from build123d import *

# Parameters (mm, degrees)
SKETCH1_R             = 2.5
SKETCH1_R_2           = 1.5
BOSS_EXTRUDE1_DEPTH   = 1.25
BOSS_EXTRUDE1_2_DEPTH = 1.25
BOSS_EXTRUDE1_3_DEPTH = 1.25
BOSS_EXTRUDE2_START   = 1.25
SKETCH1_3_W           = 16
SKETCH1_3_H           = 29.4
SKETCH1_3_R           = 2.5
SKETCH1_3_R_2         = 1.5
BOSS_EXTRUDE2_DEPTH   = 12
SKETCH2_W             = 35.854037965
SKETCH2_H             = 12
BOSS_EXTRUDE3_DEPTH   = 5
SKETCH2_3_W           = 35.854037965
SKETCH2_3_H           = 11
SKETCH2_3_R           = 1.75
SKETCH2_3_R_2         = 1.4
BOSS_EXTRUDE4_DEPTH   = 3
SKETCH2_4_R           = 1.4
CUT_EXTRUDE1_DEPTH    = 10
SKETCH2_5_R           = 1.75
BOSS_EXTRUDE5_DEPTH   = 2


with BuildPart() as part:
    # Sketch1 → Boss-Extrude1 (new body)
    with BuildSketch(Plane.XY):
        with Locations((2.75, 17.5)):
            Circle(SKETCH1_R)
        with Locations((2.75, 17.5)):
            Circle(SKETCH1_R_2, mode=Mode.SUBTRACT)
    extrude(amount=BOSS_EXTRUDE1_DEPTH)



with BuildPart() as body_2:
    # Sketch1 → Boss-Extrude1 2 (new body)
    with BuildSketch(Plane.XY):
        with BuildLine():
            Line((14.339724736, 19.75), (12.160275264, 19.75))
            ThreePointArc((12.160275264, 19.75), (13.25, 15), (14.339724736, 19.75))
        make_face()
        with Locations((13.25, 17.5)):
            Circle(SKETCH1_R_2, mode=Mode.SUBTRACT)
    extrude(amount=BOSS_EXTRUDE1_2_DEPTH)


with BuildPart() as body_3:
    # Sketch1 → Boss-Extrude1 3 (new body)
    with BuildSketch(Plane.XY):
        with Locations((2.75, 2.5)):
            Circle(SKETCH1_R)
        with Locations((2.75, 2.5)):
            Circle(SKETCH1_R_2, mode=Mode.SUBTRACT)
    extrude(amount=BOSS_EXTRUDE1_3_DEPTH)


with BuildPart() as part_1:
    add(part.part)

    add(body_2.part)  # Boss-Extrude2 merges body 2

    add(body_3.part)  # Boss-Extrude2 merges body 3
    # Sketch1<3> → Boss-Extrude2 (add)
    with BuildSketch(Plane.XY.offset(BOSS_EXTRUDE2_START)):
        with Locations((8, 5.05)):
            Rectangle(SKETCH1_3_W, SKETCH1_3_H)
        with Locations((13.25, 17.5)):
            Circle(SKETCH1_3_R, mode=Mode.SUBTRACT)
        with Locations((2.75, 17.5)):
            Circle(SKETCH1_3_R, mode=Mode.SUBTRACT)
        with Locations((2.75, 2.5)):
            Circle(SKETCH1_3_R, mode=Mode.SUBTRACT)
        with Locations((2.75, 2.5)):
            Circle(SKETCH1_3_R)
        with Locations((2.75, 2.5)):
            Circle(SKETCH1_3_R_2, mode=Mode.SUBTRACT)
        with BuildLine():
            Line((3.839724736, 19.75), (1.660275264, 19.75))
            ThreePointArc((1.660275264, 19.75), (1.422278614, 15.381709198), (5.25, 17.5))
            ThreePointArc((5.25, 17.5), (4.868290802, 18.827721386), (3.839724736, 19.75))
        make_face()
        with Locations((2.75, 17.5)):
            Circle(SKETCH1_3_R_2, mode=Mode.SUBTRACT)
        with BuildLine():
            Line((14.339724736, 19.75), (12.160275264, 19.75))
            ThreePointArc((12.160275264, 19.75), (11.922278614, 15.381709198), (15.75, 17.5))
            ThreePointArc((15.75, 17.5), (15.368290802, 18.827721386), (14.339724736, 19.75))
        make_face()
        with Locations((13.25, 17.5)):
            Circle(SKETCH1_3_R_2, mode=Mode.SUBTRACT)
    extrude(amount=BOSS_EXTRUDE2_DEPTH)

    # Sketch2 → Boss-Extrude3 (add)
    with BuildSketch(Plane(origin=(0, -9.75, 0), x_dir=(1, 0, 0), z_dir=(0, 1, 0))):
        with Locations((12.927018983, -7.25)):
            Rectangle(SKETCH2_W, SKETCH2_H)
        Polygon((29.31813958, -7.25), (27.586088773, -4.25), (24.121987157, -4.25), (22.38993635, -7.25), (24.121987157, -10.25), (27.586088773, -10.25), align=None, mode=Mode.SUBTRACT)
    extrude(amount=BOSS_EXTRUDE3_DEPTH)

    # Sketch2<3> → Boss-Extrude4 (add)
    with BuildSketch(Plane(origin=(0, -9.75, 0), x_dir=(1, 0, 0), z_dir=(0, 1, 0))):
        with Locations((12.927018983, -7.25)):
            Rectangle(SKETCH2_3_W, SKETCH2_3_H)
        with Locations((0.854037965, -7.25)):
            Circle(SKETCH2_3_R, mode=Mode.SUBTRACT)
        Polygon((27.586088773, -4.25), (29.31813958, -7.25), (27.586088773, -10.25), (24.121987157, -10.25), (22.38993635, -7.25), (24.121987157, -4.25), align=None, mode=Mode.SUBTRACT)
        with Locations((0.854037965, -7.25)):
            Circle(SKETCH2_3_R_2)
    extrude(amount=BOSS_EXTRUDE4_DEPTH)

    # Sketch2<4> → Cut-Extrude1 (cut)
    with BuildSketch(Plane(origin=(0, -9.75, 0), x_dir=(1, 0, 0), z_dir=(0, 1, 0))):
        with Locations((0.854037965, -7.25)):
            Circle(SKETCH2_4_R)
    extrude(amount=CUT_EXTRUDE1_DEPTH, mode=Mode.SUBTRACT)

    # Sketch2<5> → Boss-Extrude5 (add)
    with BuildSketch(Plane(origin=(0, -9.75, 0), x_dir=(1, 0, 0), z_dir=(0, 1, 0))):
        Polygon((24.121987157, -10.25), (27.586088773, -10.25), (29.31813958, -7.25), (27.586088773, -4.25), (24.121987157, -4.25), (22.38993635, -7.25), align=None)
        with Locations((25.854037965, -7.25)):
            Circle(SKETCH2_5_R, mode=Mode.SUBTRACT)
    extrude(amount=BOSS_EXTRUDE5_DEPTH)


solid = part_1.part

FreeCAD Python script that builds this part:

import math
import FreeCAD as App
import Part
import Sketcher

V = App.Vector
Q = App.Units.Quantity


def add_polygon(sketch, points):
    """Adds a closed chain of lines whose ends are joined by coincident constraints."""
    first, n = sketch.GeometryCount, len(points)
    for a, b in zip(points, points[1:] + points[:1]):
        sketch.addGeometry(Part.LineSegment(App.Vector(*a, 0), App.Vector(*b, 0)), False)
    for i in range(n):
        sketch.addConstraint(Sketcher.Constraint("Coincident", first + i, 2, first + (i + 1) % n, 1))

doc = App.newDocument("Part")
body = doc.addObject("PartDesign::Body", "Body")

sketch1 = body.newObject("Sketcher::SketchObject", "Sketch")
sketch1.AttachmentSupport = (doc.getObject("XY_Plane"), [""])
sketch1.MapMode = "FlatFace"
sketch1.addGeometry([
    Part.Circle(V(2.8, 17.5, 0), V(0, 0, 1), 2.5),
    Part.Circle(V(2.8, 17.5, 0), V(0, 0, 1), 1.5),
], False)
sketch1.addConstraint([
    Sketcher.Constraint("Coincident", 1, 3, 0, 3),
    Sketcher.Constraint("Diameter", 0, Q("5 mm")),
    Sketcher.Constraint("Diameter", 1, Q("3 mm")),
    Sketcher.Constraint("DistanceY", -1, 1, 0, 3, Q("17.5 mm")),
    Sketcher.Constraint("DistanceX", -1, 1, 0, 3, Q("2.75 mm")),
])
pad1 = body.newObject("PartDesign::Pad", "Pad")
pad1.Profile = sketch1
pad1.Length = 1.25
body2 = doc.addObject("PartDesign::Body", "Body001")

sketch2 = body2.newObject("Sketcher::SketchObject", "Sketch001")
sketch2.AttachmentSupport = (doc.getObject("XY_Plane001"), [""])
sketch2.MapMode = "FlatFace"
sketch2.addGeometry([
    Part.LineSegment(V(14.3, 19.8, 0), V(12.2, 19.8, 0)),
    Part.ArcOfCircle(Part.Circle(V(13.2, 17.5, 0), V(0, 0, 1), 2.5), math.radians(116), math.radians(424)),
    Part.Circle(V(13.2, 17.5, 0), V(0, 0, 1), 1.5),
], False)
sketch2.addConstraint([
    Sketcher.Constraint("Coincident", 0, 1, 1, 2),
    Sketcher.Constraint("Coincident", 1, 1, 0, 2),
    Sketcher.Constraint("Horizontal", 0),
    Sketcher.Constraint("Coincident", 2, 3, 1, 3),
    Sketcher.Constraint("Diameter", 2, Q("3 mm")),
    Sketcher.Constraint("Radius", 1, Q("2.5 mm")),
    Sketcher.Constraint("DistanceY", -1, 1, 1, 3, Q("17.5 mm")),
    Sketcher.Constraint("DistanceX", -1, 1, 1, 3, Q("13.25 mm")),
    Sketcher.Constraint("DistanceY", -1, 1, 0, 1, Q("19.75 mm")),
])
pad2 = body2.newObject("PartDesign::Pad", "Pad001")
pad2.Profile = sketch2
pad2.Length = 1.25
body3 = doc.addObject("PartDesign::Body", "Body002")

sketch3 = body3.newObject("Sketcher::SketchObject", "Sketch002")
sketch3.AttachmentSupport = (doc.getObject("XY_Plane002"), [""])
sketch3.MapMode = "FlatFace"
sketch3.addGeometry([
    Part.Circle(V(2.8, 2.5, 0), V(0, 0, 1), 2.5),
    Part.Circle(V(2.8, 2.5, 0), V(0, 0, 1), 1.5),
], False)
sketch3.addConstraint([
    Sketcher.Constraint("Coincident", 1, 3, 0, 3),
    Sketcher.Constraint("Diameter", 0, Q("5 mm")),
    Sketcher.Constraint("Diameter", 1, Q("3 mm")),
    Sketcher.Constraint("DistanceY", -1, 1, 0, 3, Q("2.5 mm")),
    Sketcher.Constraint("DistanceX", -1, 1, 0, 3, Q("2.75 mm")),
])
pad3 = body3.newObject("PartDesign::Pad", "Pad002")
pad3.Profile = sketch3
pad3.Length = 1.25
body.AllowCompound = True
doc.recompute()

boolean = body.newObject("PartDesign::Boolean", "Boolean")
boolean.Type = "Fuse"
boolean.addObjects([body2])
doc.recompute()

boolean2 = body.newObject("PartDesign::Boolean", "Boolean001")
boolean2.Type = "Fuse"
boolean2.addObjects([body3])

sketch4 = body.newObject("Sketcher::SketchObject", "Sketch003")
sketch4.AttachmentSupport = (doc.getObject("XY_Plane"), [""])
sketch4.MapMode = "FlatFace"
sketch4.AttachmentOffset = App.Placement(V(0, 0, 1.25), App.Rotation())
add_polygon(sketch4, [(0, 19.8), (0, -9.7), (16, -9.7), (16, 19.8)])
sketch4.addGeometry(Part.Circle(V(2.8, 2.5, 0), V(0, 0, 1), 1.5), False)
sketch4.addGeometry(Part.Circle(V(2.8, 17.5, 0), V(0, 0, 1), 1.5), False)
sketch4.addGeometry(Part.Circle(V(13.2, 17.5, 0), V(0, 0, 1), 1.5), False)
sketch4.addConstraint([
    Sketcher.Constraint("Vertical", 0),
    Sketcher.Constraint("Horizontal", 1),
    Sketcher.Constraint("Vertical", 2),
    Sketcher.Constraint("Horizontal", 3),
    Sketcher.Constraint("Equal", 4, 5),
    Sketcher.Constraint("Equal", 5, 6),
    Sketcher.Constraint("PointOnObject", 0, 2, -2),
    Sketcher.Constraint("Horizontal", 5, 3, 6, 3),
    Sketcher.Constraint("Vertical", 4, 3, 5, 3),
    Sketcher.Constraint("Diameter", 4, Q("3 mm")),
    Sketcher.Constraint("DistanceX", 1, 1, 1, 2, Q("16 mm")),
    Sketcher.Constraint("DistanceY", 0, 2, 0, 1, Q("29.4 mm")),
    Sketcher.Constraint("DistanceY", 4, 3, 5, 3, Q("15 mm")),
    Sketcher.Constraint("DistanceY", -1, 1, 4, 3, Q("2.5 mm")),
    Sketcher.Constraint("DistanceX", 5, 3, 6, 3, Q("10.5 mm")),
    Sketcher.Constraint("DistanceX", -1, 1, 4, 3, Q("2.75 mm")),
    Sketcher.Constraint("DistanceY", 0, 2, -1, 1, Q("9.65 mm")),
])
pad4 = body.newObject("PartDesign::Pad", "Pad003")
pad4.Profile = sketch4
pad4.Length = 12

sketch5 = body.newObject("Sketcher::SketchObject", "Sketch004")
sketch5.AttachmentSupport = (doc.getObject("XZ_Plane"), [""])
sketch5.MapMode = "FlatFace"
sketch5.AttachmentOffset = App.Placement(V(0, 0, 9.75), App.Rotation())
add_polygon(sketch5, [(-5, 1.2), (-5, 13.2), (30.9, 13.2), (30.9, 1.2)])
add_polygon(sketch5, [(27.6, 4.2), (29.3, 7.2), (27.6, 10.2), (24.1, 10.2), (22.4, 7.2), (24.1, 4.2)])
sketch5.addConstraint([
    Sketcher.Constraint("Vertical", 0),
    Sketcher.Constraint("Horizontal", 1),
    Sketcher.Constraint("Vertical", 2),
    Sketcher.Constraint("Horizontal", 3),
    Sketcher.Constraint("Horizontal", 6),
    Sketcher.Constraint("Horizontal", 9),
    Sketcher.Constraint("Parallel", 4, 7),
    Sketcher.Constraint("Parallel", 5, 8),
    Sketcher.Constraint("Horizontal", 4, 2, 7, 2),
    Sketcher.Constraint("Vertical", 6, 2, 8, 2),
    Sketcher.Constraint("Vertical", 5, 2, 9, 2),
    Sketcher.Constraint("DistanceY", 0, 1, 0, 2, Q("12 mm")),
    Sketcher.Constraint("Angle", 4, Q("60 deg")),
    Sketcher.Constraint("DistanceX", 0, 2, -1, 1, Q("5 mm")),
    Sketcher.Constraint("DistanceY", 4, 2, 1, 2, Q("6 mm")),
    Sketcher.Constraint("DistanceY", 4, 2, 5, 2, Q("3 mm")),
    Sketcher.Constraint("DistanceY", -1, 1, 0, 2, Q("13.25 mm")),
    Sketcher.Constraint("DistanceX", 6, 2, 6, 1, Q("3.464102 mm")),
    Sketcher.Constraint("DistanceX", 4, 2, 1, 2, Q("1.535898 mm")),
    Sketcher.Constraint("DistanceX", 1, 1, 1, 2, Q("35.854038 mm")),
])
pad5 = body.newObject("PartDesign::Pad", "Pad004")
pad5.Profile = sketch5
pad5.Length = 5
pad5.Reversed = True

sketch6 = body.newObject("Sketcher::SketchObject", "Sketch005")
sketch6.AttachmentSupport = (doc.getObject("XZ_Plane"), [""])
sketch6.MapMode = "FlatFace"
sketch6.AttachmentOffset = App.Placement(V(0, 0, 9.75), App.Rotation())
add_polygon(sketch6, [(-5, 1.8), (-5, 12.8), (30.9, 12.8), (30.9, 1.8)])
sketch6.addGeometry(Part.Circle(V(0.9, 7.2, 0), V(0, 0, 1), 1.8), False)
add_polygon(sketch6, [(24.1, 4.2), (27.6, 4.2), (29.3, 7.2), (27.6, 10.2), (24.1, 10.2), (22.4, 7.2)])
sketch6.addGeometry(Part.Circle(V(0.9, 7.2, 0), V(0, 0, 1), 1.4), False)
sketch6.addConstraint([
    Sketcher.Constraint("Vertical", 0),
    Sketcher.Constraint("Horizontal", 1),
    Sketcher.Constraint("Vertical", 2),
    Sketcher.Constraint("Horizontal", 3),
    Sketcher.Constraint("Horizontal", 5),
    Sketcher.Constraint("Horizontal", 8),
    Sketcher.Constraint("Coincident", 11, 3, 4, 3),
    Sketcher.Constraint("Parallel", 6, 9),
    Sketcher.Constraint("Parallel", 7, 10),
    Sketcher.Constraint("Horizontal", 11, 3, 6, 2),
    Sketcher.Constraint("Horizontal", 6, 2, 9, 2),
    Sketcher.Constraint("Vertical", 5, 2, 7, 2),
    Sketcher.Constraint("Vertical", 8, 2, 10, 2),
    Sketcher.Constraint("Diameter", 4, Q("3.5 mm")),
    Sketcher.Constraint("Diameter", 11, Q("2.8 mm")),
    Sketcher.Constraint("DistanceY", 0, 1, 0, 2, Q("11 mm")),
    Sketcher.Constraint("Angle", 6, Q("60 deg")),
    Sketcher.Constraint("DistanceX", 0, 2, -1, 1, Q("5 mm")),
    Sketcher.Constraint("DistanceX", 4, 3, 1, 2, Q("30 mm")),
    Sketcher.Constraint("DistanceY", 5, 2, 4, 3, Q("3 mm")),
    Sketcher.Constraint("DistanceY", 4, 3, 0, 2, Q("5.5 mm")),
    Sketcher.Constraint("DistanceY", -1, 1, 4, 3, Q("7.25 mm")),
    Sketcher.Constraint("DistanceX", 5, 1, 5, 2, Q("3.464102 mm")),
    Sketcher.Constraint("DistanceX", 6, 2, 1, 2, Q("1.535898 mm")),
    Sketcher.Constraint("DistanceX", 1, 1, 1, 2, Q("35.854038 mm")),
])
pad6 = body.newObject("PartDesign::Pad", "Pad005")
pad6.Profile = sketch6
pad6.Length = 3
pad6.Reversed = True

sketch7 = body.newObject("Sketcher::SketchObject", "Sketch006")
sketch7.AttachmentSupport = (doc.getObject("XZ_Plane"), [""])
sketch7.MapMode = "FlatFace"
sketch7.AttachmentOffset = App.Placement(V(0, 0, 9.75), App.Rotation())
sketch7.addGeometry(Part.Circle(V(0.9, 7.2, 0), V(0, 0, 1), 1.4), False)
sketch7.addConstraint([
    Sketcher.Constraint("Diameter", 0, Q("2.8 mm")),
    Sketcher.Constraint("DistanceY", -1, 1, 0, 3, Q("7.25 mm")),
    Sketcher.Constraint("DistanceX", -1, 1, 0, 3, Q("0.854038 mm")),
])
pocket1 = body.newObject("PartDesign::Pocket", "Pocket")
pocket1.Profile = sketch7
pocket1.Length = 10

sketch8 = body.newObject("Sketcher::SketchObject", "Sketch007")
sketch8.AttachmentSupport = (doc.getObject("XZ_Plane"), [""])
sketch8.MapMode = "FlatFace"
sketch8.AttachmentOffset = App.Placement(V(0, 0, 9.75), App.Rotation())
add_polygon(sketch8, [(24.1, 10.2), (27.6, 10.2), (29.3, 7.2), (27.6, 4.2), (24.1, 4.2), (22.4, 7.2)])
sketch8.addGeometry(Part.Circle(V(25.9, 7.2, 0), V(0, 0, 1), 1.8), False)
sketch8.addConstraint([
    Sketcher.Constraint("Horizontal", 0),
    Sketcher.Constraint("Horizontal", 3),
    Sketcher.Constraint("Parallel", 1, 4),
    Sketcher.Constraint("Parallel", 2, 5),
    Sketcher.Constraint("Horizontal", 6, 3, 1, 2),
    Sketcher.Constraint("Horizontal", 1, 2, 4, 2),
    Sketcher.Constraint("Vertical", 0, 2, 2, 2),
    Sketcher.Constraint("Vertical", 3, 2, 5, 2),
    Sketcher.Constraint("Diameter", 6, Q("3.5 mm")),
    Sketcher.Constraint("Angle", 1, Q("-60 deg")),
    Sketcher.Constraint("DistanceY", 6, 3, 0, 2, Q("3 mm")),
    Sketcher.Constraint("DistanceY", -1, 1, 6, 3, Q("7.25 mm")),
    Sketcher.Constraint("DistanceX", 0, 1, 0, 2, Q("3.464102 mm")),
    Sketcher.Constraint("DistanceX", 6, 3, 1, 2, Q("3.464102 mm")),
    Sketcher.Constraint("DistanceX", -1, 1, 0, 2, Q("27.586089 mm")),
])
pad7 = body.newObject("PartDesign::Pad", "Pad006")
pad7.Profile = sketch8
pad7.Length = 2
pad7.Reversed = True

doc.recompute()
